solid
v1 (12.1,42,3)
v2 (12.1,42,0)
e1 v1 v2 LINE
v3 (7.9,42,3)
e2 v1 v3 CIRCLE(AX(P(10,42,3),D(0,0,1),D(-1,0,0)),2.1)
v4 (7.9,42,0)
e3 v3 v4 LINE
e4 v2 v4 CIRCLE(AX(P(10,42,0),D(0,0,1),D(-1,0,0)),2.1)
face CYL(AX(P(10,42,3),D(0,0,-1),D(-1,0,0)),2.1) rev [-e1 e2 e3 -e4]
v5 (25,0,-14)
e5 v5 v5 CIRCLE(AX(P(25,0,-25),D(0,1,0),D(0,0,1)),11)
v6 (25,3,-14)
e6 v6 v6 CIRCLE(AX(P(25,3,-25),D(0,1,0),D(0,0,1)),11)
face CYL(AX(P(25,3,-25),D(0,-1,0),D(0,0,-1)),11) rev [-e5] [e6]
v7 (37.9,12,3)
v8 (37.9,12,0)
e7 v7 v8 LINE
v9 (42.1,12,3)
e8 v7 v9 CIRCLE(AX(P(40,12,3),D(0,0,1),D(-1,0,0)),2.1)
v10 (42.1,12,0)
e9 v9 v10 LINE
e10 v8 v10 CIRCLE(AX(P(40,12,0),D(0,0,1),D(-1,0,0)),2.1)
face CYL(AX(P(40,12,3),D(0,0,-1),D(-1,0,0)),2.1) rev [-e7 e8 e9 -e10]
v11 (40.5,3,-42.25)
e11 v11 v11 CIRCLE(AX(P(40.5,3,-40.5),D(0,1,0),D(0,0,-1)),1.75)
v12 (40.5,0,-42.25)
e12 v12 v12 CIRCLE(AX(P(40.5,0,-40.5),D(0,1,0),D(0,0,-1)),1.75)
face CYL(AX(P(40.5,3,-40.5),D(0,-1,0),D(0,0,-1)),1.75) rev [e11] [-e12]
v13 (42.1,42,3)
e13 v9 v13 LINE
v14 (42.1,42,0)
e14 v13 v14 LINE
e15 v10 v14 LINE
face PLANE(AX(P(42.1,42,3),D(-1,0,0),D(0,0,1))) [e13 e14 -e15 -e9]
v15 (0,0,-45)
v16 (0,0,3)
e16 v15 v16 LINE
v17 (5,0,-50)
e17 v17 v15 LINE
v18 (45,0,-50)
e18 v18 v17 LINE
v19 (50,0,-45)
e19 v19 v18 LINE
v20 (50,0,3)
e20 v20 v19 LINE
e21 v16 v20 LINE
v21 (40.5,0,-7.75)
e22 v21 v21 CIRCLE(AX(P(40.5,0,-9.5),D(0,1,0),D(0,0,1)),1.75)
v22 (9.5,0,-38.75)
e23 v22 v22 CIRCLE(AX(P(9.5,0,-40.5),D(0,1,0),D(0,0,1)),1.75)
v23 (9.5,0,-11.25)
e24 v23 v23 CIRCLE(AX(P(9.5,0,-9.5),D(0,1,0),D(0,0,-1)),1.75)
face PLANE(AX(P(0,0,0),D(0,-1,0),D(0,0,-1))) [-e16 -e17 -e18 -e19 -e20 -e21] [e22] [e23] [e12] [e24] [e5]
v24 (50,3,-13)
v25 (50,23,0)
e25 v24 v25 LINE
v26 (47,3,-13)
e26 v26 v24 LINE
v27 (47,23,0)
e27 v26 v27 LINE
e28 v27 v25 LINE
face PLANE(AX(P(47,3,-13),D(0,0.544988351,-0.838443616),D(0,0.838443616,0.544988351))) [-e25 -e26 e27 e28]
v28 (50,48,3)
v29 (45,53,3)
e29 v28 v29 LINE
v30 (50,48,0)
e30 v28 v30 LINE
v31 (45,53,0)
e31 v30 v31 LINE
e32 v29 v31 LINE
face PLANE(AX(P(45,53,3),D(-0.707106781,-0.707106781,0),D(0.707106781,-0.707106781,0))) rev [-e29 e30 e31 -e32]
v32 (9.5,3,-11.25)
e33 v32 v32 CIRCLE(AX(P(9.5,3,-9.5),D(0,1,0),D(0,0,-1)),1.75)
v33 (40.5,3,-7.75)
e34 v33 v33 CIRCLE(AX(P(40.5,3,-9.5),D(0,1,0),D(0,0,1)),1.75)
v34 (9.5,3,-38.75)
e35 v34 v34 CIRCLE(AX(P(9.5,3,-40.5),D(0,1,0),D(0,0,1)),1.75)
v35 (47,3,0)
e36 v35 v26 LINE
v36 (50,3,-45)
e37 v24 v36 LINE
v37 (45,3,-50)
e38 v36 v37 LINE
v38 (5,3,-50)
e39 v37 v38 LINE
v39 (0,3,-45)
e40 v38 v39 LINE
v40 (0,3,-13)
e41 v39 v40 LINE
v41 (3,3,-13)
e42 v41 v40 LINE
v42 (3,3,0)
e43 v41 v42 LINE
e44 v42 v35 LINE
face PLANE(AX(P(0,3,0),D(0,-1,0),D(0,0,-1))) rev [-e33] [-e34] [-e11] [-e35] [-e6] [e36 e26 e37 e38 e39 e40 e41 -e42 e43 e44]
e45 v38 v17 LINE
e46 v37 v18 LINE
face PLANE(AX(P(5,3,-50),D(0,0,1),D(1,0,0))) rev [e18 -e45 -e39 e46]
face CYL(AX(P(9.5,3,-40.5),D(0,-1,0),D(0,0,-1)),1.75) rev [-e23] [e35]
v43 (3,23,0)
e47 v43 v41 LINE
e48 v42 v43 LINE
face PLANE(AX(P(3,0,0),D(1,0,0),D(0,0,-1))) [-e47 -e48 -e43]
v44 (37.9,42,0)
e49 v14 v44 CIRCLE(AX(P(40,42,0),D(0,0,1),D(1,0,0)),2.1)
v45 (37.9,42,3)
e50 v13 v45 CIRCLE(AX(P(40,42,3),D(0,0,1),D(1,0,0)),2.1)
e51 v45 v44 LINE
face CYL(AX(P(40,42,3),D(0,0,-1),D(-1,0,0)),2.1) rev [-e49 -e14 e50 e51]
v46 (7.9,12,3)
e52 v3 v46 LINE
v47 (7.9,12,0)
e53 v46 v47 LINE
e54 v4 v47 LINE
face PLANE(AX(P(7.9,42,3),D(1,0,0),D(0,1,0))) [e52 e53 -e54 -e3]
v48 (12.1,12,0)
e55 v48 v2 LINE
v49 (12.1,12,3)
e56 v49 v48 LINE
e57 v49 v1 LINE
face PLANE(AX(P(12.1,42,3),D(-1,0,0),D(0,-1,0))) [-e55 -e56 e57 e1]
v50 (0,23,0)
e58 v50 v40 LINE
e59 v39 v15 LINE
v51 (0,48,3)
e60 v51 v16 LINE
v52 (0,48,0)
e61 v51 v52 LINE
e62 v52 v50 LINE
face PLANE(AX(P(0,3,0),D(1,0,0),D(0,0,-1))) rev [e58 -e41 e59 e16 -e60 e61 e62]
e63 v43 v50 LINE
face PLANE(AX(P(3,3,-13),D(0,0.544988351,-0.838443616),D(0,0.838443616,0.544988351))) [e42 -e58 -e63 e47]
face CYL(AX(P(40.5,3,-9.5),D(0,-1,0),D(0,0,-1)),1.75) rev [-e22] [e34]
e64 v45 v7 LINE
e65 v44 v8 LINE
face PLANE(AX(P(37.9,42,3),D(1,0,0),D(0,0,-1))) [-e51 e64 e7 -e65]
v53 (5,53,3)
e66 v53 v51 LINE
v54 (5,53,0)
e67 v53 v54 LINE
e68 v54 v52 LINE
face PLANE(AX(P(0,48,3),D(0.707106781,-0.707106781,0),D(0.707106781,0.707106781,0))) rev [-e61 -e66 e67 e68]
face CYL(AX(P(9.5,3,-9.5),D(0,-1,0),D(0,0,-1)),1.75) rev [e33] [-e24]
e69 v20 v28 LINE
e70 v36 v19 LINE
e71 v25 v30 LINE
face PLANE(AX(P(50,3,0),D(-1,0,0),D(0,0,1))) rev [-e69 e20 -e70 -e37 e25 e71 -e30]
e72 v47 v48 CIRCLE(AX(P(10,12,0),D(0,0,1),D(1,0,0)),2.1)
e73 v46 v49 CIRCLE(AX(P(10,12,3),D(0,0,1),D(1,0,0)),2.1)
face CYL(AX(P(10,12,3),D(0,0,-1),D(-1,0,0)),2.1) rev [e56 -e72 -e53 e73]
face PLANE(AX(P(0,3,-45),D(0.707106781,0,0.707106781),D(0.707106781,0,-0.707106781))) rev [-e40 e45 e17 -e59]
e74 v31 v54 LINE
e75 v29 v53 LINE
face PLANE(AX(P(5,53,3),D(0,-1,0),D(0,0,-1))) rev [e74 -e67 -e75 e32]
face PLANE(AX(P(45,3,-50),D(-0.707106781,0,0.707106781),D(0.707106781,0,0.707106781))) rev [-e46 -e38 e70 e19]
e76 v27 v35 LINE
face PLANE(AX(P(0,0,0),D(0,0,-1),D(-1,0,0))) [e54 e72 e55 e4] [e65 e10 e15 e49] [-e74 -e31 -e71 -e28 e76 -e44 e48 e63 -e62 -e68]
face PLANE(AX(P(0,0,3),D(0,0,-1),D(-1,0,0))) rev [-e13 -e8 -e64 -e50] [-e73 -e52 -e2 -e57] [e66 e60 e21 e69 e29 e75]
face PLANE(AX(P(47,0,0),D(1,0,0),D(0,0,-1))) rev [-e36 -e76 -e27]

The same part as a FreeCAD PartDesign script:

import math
import FreeCAD as App
import Part
import Sketcher
from FreeCAD import Vector


def add_polygon(sketch, points):
    """Adds a closed chain of lines whose ends are joined by coincident constraints."""
    first, n = sketch.GeometryCount, len(points)
    for a, b in zip(points, points[1:] + points[:1]):
        sketch.addGeometry(Part.LineSegment(App.Vector(*a, 0), App.Vector(*b, 0)), False)
    for i in range(n):
        sketch.addConstraint(Sketcher.Constraint("Coincident", first + i, 2, first + (i + 1) % n, 1))

doc = App.newDocument("Part")
body = doc.addObject("PartDesign::Body", "Body")

# Sketch on XZ plane
sketch1 = body.newObject("Sketcher::SketchObject", "Sketch")
sketch1.AttachmentSupport = (doc.getObject("XZ_Plane"), [""])
sketch1.MapMode = "FlatFace"
add_polygon(sketch1, [(0, 0), (50, 0), (50, -45), (45, -50), (5, -50), (0, -45)])  # lines 0-5
sketch1.addGeometry(Part.Circle(Vector(9.5, -9.5, 0), Vector(0, 0, 1), 1.75), False)  # 6
sketch1.addGeometry(Part.Circle(Vector(40.5, -9.5, 0), Vector(0, 0, 1), 1.75), False)  # 7
sketch1.addGeometry(Part.Circle(Vector(9.5, -40.5, 0), Vector(0, 0, 1), 1.75), False)  # 8
sketch1.addGeometry(Part.Circle(Vector(25, -25, 0), Vector(0, 0, 1), 11), False)  # 9
sketch1.addGeometry(Part.Circle(Vector(40.5, -40.5, 0), Vector(0, 0, 1), 1.75), False)  # 10
sketch1.addConstraint([
    Sketcher.Constraint("Horizontal", 0),
    Sketcher.Constraint("Vertical", 1),
    Sketcher.Constraint("Horizontal", 3),
    Sketcher.Constraint("Vertical", 5),
    Sketcher.Constraint("Coincident", 5, 2, -1, 1),
    Sketcher.Constraint("Equal", 6, 7),
    Sketcher.Constraint("Equal", 7, 8),
    Sketcher.Constraint("Equal", 8, 10),
    Sketcher.Constraint("Perpendicular", 2, 4),
    Sketcher.Constraint("Horizontal", 6, 3, 7, 3),
    Sketcher.Constraint("Horizontal", 8, 3, 10, 3),
    Sketcher.Constraint("Horizontal", 1, 2, 4, 2),
    Sketcher.Constraint("Vertical", 6, 3, 8, 3),
    Sketcher.Constraint("Vertical", 7, 3, 10, 3),
    Sketcher.Constraint("Equal", 2, 4),
    Sketcher.Constraint("Diameter", 9, 22.0),
    Sketcher.Constraint("Diameter", 6, 3.5),
    Sketcher.Constraint("DistanceX", 0, 1, 0, 2, 50.0),
    Sketcher.Constraint("DistanceX", 3, 2, 3, 1, 40.0),
    Sketcher.Constraint("DistanceY", 1, 2, 1, 1, 45.0),
    Sketcher.Constraint("DistanceX", -1, 1, 9, 3, 25.0),
    Sketcher.Constraint("DistanceY", 9, 3, -1, 1, 25.0),
    Sketcher.Constraint("DistanceX", 6, 3, 7, 3, 31.0),
    Sketcher.Constraint("DistanceY", 8, 3, 6, 3, 31.0),
    Sketcher.Constraint("DistanceX", -1, 1, 6, 3, 9.5),
    Sketcher.Constraint("DistanceY", 6, 3, -1, 1, 9.5),
])
pad1 = body.newObject("PartDesign::Pad", "Pad")
pad1.Profile = sketch1
pad1.Length = 3
pad1.Reversed = True

# Sketch on XY plane
sketch2 = body.newObject("Sketcher::SketchObject", "Sketch001")
sketch2.AttachmentSupport = (doc.getObject("XY_Plane"), [""])
sketch2.MapMode = "FlatFace"
add_polygon(sketch2, [(0, 0), (50, 0), (50, 48), (45, 53), (5, 53), (0, 48)])  # lines 0-5
sketch2.addGeometry(Part.LineSegment(Vector(7.9, 12, 0), Vector(7.9, 42, 0)), False)  # 6
sketch2.addGeometry(Part.ArcOfCircle(Part.Circle(Vector(10, 42, 0), Vector(0, 0, 1), 2.1), math.radians(0), math.radians(180)), False)  # 7
sketch2.addGeometry(Part.LineSegment(Vector(12.1, 42, 0), Vector(12.1, 12, 0)), False)  # 8
sketch2.addGeometry(Part.ArcOfCircle(Part.Circle(Vector(10, 12, 0), Vector(0, 0, 1), 2.1), math.radians(180), math.radians(360)), False)  # 9
sketch2.addGeometry(Part.LineSegment(Vector(37.9, 12, 0), Vector(37.9, 42, 0)), False)  # 10
sketch2.addGeometry(Part.ArcOfCircle(Part.Circle(Vector(40, 42, 0), Vector(0, 0, 1), 2.1), math.radians(0), math.radians(180)), False)  # 11
sketch2.addGeometry(Part.LineSegment(Vector(42.1, 42, 0), Vector(42.1, 12, 0)), False)  # 12
sketch2.addGeometry(Part.ArcOfCircle(Part.Circle(Vector(40, 12, 0), Vector(0, 0, 1), 2.1), math.radians(180), math.radians(360)), False)  # 13
sketch2.addConstraint([
    Sketcher.Constraint("Tangent", 6, 2, 7, 2),
    Sketcher.Constraint("Tangent", 7, 1, 8, 1),
    Sketcher.Constraint("Tangent", 8, 2, 9, 2),
    Sketcher.Constraint("Tangent", 9, 1, 6, 1),
    Sketcher.Constraint("Tangent", 10, 2, 11, 2),
    Sketcher.Constraint("Tangent", 11, 1, 12, 1),
    Sketcher.Constraint("Tangent", 12, 2, 13, 2),
    Sketcher.Constraint("Tangent", 13, 1, 10, 1),
    Sketcher.Constraint("Horizontal", 0),
    Sketcher.Constraint("Vertical", 1),
    Sketcher.Constraint("Horizontal", 3),
    Sketcher.Constraint("Vertical", 5),
    Sketcher.Constraint("Vertical", 6),
    Sketcher.Constraint("Vertical", 8),
    Sketcher.Constraint("Vertical", 10),
    Sketcher.Constraint("Vertical", 12),
    Sketcher.Constraint("Coincident", 5, 2, -1, 1),
    Sketcher.Constraint("Equal", 9, 11),
    Sketcher.Constraint("Perpendicular", 2, 4),
    Sketcher.Constraint("Horizontal", 7, 3, 11, 3),
    Sketcher.Constraint("Horizontal", 9, 3, 13, 3),
    Sketcher.Constraint("Horizontal", 1, 2, 4, 2),
    Sketcher.Constraint("Equal", 2, 4),
    Sketcher.Constraint("Radius", 7, 2.1),
    Sketcher.Constraint("DistanceX", 0, 1, 0, 2, 50.0),
    Sketcher.Constraint("DistanceX", 3, 2, 3, 1, 40.0),
    Sketcher.Constraint("DistanceY", 1, 1, 1, 2, 48.0),
    Sketcher.Constraint("DistanceY", 6, 1, 6, 2, 30.0),
    Sketcher.Constraint("DistanceX", -1, 1, 7, 3, 10.0),
    Sketcher.Constraint("DistanceY", -1, 1, 7, 3, 42.0),
    Sketcher.Constraint("DistanceX", -1, 1, 11, 3, 40.0),
])
pad2 = body.newObject("PartDesign::Pad", "Pad001")
pad2.Profile = sketch2
pad2.Length = 3

# Sketch on YZ plane
sketch3 = body.newObject("Sketcher::SketchObject", "Sketch002")
sketch3.AttachmentSupport = (doc.getObject("YZ_Plane"), [""])
sketch3.MapMode = "FlatFace"
add_polygon(sketch3, [(3, -13), (3, 0), (23, 0)])  # lines 0-2
sketch3.addConstraint([
    Sketcher.Constraint("Vertical", 0),
    Sketcher.Constraint("Horizontal", 1),
    Sketcher.Constraint("PointOnObject", 0, 2, -1),
    Sketcher.Constraint("DistanceX", 1, 1, 1, 2, 20.0),
    Sketcher.Constraint("DistanceY", 0, 1, 0, 2, 13.0),
    Sketcher.Constraint("DistanceX", -1, 1, 0, 2, 3.0),
])
pad3 = body.newObject("PartDesign::Pad", "Pad002")
pad3.Profile = sketch3
pad3.Length = 3

# Sketch on YZ plane
sketch4 = body.newObject("Sketcher::SketchObject", "Sketch003")
sketch4.AttachmentSupport = (doc.getObject("YZ_Plane"), [""])
sketch4.MapMode = "FlatFace"
sketch4.AttachmentOffset = App.Placement(Vector(0, 0, 50), App.Rotation())
add_polygon(sketch4, [(3, 0), (3, -13), (23, 0)])  # lines 0-2
sketch4.addConstraint([
    Sketcher.Constraint("Vertical", 0),
    Sketcher.Constraint("Horizontal", 2),
    Sketcher.Constraint("PointOnObject", 1, 2, -1),
    Sketcher.Constraint("DistanceX", 2, 2, 2, 1, 20.0),
    Sketcher.Constraint("DistanceY", 0, 2, 0, 1, 13.0),
    Sketcher.Constraint("DistanceX", -1, 1, 0, 2, 3.0),
])
pad4 = body.newObject("PartDesign::Pad", "Pad003")
pad4.Profile = sketch4
pad4.Length = 3
pad4.Reversed = True

doc.recompute()
